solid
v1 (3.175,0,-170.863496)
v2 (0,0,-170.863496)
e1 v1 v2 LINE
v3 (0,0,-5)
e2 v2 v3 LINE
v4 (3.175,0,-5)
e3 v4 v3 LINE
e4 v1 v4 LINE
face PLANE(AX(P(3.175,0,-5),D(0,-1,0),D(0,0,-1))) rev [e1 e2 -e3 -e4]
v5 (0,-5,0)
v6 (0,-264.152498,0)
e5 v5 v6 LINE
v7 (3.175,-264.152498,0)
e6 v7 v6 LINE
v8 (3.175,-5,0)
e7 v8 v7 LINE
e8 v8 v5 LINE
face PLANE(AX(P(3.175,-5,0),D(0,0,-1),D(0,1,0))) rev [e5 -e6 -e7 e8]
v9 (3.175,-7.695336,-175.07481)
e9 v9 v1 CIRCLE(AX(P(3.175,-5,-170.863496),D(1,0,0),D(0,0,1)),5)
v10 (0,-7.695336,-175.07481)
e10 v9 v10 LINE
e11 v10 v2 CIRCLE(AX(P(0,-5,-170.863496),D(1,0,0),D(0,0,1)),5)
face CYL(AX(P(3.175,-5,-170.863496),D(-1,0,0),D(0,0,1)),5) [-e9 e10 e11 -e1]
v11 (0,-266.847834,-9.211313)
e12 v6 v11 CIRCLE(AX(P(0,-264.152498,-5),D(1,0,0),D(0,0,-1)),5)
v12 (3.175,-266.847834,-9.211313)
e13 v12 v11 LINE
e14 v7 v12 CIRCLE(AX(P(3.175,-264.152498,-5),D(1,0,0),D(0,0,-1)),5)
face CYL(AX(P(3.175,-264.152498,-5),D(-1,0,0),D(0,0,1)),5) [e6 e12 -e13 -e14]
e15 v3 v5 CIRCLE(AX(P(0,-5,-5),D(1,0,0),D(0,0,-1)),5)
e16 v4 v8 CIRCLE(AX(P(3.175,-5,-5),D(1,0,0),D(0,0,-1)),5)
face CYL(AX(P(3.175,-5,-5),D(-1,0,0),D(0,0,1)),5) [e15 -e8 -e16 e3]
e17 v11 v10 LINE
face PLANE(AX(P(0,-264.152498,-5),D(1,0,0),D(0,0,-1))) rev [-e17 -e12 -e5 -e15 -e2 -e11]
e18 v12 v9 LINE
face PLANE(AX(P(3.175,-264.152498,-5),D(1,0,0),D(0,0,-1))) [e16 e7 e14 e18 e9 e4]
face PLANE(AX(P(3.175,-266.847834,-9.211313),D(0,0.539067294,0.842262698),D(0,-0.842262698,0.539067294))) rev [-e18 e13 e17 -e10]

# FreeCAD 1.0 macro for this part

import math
import FreeCAD as App
import Part
import Sketcher

V = App.Vector
Q = App.Units.Quantity

doc = App.newDocument("Part")
body = doc.addObject("PartDesign::Body", "Body")

# Sketch on YZ plane
sketch1 = body.newObject("Sketcher::SketchObject", "Sketch")
sketch1.AttachmentSupport = (doc.getObject("YZ_Plane"), [""])
sketch1.MapMode = "FlatFace"
sketch1.addGeometry([
    Part.LineSegment(V(0, -171, 0), V(0, -5, 0)),  # 0
    Part.ArcOfCircle(Part.Circle(V(-5, -5, 0), V(0, 0, 1), 5), math.radians(0), math.radians(90)),  # 1
    Part.LineSegment(V(-5, 0, 0), V(-264, 0, 0)),  # 2
    Part.ArcOfCircle(Part.Circle(V(-264, -5, 0), V(0, 0, 1), 5), math.radians(90), math.radians(237)),  # 3
    Part.LineSegment(V(-267, -9, 0), V(-8, -175, 0)),  # 4
    Part.ArcOfCircle(Part.Circle(V(-5, -171, 0), V(0, 0, 1), 5), math.radians(-123), math.radians(0)),  # 5
], False)
sketch1.addConstraint([
    Sketcher.Constraint("Tangent", 0, 2, 1, 1),
    Sketcher.Constraint("Tangent", 1, 2, 2, 1),
    Sketcher.Constraint("Tangent", 2, 2, 3, 1),
    Sketcher.Constraint("Tangent", 3, 2, 4, 1),
    Sketcher.Constraint("Tangent", 4, 2, 5, 1),
    Sketcher.Constraint("Tangent", 5, 2, 0, 1),
    Sketcher.Constraint("Vertical", 0),
    Sketcher.Constraint("Horizontal", 2),
    Sketcher.Constraint("Equal", 1, 3),
    Sketcher.Constraint("Equal", 3, 5),
    Sketcher.Constraint("PointOnObject", 0, 2, -2),
    Sketcher.Constraint("PointOnObject", 1, 2, -1),
    Sketcher.Constraint("Radius", 1, Q("5 mm")),
    Sketcher.Constraint("Distance", 4, Q("307.686068 mm")),
    Sketcher.Constraint("DistanceX", 2, 2, 2, 1, Q("259.152498 mm")),
])
pad1 = body.newObject("PartDesign::Pad", "Pad")
pad1.Profile = sketch1
pad1.Length = 3.175

doc.recompute()
